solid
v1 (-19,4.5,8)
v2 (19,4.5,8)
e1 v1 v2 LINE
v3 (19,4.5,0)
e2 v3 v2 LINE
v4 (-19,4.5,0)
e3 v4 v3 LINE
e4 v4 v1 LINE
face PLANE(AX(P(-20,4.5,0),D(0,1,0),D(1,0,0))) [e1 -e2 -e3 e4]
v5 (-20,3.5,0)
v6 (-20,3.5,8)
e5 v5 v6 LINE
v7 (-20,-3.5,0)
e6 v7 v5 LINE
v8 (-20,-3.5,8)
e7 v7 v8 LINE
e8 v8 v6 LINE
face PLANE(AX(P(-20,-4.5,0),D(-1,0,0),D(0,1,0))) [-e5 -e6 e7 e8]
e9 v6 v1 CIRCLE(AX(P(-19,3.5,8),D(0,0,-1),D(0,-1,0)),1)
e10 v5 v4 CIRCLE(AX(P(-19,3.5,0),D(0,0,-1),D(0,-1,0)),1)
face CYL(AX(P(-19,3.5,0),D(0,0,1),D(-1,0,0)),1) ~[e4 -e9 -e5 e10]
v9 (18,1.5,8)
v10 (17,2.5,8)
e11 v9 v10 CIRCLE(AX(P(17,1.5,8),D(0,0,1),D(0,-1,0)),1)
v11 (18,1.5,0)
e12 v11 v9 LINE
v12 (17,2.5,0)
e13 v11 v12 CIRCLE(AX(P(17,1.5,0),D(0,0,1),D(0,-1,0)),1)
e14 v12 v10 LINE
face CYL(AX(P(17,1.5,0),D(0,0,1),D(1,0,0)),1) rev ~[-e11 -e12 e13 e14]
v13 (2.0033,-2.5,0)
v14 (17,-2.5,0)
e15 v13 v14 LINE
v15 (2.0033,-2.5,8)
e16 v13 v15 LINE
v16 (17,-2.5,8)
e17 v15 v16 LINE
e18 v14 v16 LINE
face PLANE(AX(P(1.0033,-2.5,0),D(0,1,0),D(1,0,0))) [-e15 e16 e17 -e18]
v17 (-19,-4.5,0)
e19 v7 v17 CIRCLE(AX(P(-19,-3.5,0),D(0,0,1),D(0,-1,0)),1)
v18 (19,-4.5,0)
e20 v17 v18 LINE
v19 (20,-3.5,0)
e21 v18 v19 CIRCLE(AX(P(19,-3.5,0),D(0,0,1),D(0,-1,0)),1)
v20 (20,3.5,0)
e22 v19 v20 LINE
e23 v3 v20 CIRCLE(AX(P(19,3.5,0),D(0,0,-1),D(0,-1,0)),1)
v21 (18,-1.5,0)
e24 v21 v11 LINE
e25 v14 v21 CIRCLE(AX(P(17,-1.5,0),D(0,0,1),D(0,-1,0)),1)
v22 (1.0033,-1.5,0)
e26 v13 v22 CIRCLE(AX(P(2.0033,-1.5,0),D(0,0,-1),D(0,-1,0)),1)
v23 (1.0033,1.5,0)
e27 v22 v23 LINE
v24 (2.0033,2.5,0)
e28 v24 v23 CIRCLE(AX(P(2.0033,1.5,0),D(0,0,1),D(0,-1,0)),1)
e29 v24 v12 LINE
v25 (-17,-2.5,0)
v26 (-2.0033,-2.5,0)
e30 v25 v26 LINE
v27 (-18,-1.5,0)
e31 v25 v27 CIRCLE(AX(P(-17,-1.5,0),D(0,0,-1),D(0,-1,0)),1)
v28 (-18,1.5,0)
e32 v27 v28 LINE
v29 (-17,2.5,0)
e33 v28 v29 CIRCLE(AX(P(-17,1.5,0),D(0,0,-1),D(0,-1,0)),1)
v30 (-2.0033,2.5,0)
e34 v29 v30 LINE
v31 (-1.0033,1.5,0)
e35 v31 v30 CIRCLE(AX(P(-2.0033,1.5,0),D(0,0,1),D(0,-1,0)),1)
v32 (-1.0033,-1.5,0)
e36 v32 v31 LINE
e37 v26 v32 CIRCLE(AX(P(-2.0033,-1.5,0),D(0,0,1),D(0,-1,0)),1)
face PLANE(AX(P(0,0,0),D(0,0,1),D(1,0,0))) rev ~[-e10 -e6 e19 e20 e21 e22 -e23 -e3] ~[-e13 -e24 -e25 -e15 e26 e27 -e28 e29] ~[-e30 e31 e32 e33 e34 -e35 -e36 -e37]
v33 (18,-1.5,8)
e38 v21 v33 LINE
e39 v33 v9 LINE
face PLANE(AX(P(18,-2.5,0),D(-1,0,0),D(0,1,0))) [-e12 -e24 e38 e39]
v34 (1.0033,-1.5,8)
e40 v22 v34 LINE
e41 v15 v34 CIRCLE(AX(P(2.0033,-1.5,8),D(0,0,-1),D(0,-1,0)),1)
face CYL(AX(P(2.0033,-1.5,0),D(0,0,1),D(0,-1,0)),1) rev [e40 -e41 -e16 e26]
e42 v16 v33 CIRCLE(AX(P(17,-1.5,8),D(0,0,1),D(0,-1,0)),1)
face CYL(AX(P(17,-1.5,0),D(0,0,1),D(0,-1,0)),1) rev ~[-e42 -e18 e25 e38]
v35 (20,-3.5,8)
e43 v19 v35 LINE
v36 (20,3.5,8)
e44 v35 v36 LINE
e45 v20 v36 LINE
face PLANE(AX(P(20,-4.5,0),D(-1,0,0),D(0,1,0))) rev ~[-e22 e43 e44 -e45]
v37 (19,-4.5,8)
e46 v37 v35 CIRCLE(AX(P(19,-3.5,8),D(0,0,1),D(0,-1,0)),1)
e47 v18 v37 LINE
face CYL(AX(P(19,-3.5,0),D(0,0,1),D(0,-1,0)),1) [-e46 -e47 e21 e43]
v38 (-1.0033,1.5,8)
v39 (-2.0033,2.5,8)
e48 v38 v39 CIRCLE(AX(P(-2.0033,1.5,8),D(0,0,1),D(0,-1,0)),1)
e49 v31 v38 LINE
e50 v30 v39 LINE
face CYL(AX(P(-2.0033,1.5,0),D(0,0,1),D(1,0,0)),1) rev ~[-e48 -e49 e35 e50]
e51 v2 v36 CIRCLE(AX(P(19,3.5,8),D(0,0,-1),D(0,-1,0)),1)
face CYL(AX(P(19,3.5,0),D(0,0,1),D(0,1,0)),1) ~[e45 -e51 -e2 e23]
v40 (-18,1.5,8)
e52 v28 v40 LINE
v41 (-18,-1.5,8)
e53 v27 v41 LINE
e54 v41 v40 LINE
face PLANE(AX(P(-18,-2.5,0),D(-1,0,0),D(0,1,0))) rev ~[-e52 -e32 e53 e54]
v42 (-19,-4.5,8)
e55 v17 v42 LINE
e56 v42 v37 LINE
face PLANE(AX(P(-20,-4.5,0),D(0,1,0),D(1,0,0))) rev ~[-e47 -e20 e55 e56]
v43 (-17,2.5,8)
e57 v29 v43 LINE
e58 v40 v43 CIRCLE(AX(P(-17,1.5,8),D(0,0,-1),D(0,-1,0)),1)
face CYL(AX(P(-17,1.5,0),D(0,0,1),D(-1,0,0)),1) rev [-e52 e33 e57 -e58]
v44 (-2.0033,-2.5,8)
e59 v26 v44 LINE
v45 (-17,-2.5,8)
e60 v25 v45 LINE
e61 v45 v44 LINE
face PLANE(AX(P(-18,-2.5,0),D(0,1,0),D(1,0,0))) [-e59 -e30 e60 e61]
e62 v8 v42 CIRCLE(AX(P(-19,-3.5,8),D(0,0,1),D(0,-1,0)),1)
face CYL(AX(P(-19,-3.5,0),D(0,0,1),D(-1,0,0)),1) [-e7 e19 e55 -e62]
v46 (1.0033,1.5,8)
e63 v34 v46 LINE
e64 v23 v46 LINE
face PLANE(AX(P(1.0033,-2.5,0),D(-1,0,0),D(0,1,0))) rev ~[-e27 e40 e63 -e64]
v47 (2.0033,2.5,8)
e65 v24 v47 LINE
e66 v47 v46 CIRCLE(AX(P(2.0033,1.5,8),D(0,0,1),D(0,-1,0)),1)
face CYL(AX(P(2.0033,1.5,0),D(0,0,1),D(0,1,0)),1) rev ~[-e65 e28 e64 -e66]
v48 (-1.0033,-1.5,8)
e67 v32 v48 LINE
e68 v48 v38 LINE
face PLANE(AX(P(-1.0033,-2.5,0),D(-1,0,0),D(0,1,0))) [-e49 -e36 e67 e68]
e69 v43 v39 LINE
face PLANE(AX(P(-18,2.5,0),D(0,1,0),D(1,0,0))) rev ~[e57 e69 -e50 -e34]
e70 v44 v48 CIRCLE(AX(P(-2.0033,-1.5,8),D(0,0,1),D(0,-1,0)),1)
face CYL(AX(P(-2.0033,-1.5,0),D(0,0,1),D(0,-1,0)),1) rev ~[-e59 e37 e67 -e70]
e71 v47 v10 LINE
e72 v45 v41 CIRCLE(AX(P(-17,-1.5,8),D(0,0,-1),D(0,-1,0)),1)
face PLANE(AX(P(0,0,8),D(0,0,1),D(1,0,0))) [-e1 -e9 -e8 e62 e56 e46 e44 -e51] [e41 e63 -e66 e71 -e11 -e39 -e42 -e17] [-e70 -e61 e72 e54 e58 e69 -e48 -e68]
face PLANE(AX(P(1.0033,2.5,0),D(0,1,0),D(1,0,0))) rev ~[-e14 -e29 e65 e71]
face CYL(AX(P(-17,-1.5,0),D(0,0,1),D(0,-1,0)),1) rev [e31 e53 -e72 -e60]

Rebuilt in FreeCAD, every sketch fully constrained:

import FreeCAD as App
import Part
import Sketcher


def edges_at(feature, points):
    """Names of the edges that pass closest to the given points."""
    edges = feature.Shape.Edges
    near = lambda p: min(range(len(edges)), key=lambda i: edges[i].distToShape(Part.Vertex(*p))[0])
    return sorted({f"Edge{near(p) + 1}" for p in points})


def add_polygon(sketch, points):
    """Adds a closed chain of lines whose ends are joined by coincident constraints."""
    first, n = sketch.GeometryCount, len(points)
    for a, b in zip(points, points[1:] + points[:1]):
        sketch.addGeometry(Part.LineSegment(App.Vector(*a, 0), App.Vector(*b, 0)), False)
    for i in range(n):
        sketch.addConstraint(Sketcher.Constraint("Coincident", first + i, 2, first + (i + 1) % n, 1))

doc = App.newDocument("Part")
params = doc.addObject("Spreadsheet::Sheet", "Params")
for row, (alias, value) in enumerate([
    ("sketch1_width", "40 mm"),
    ("sketch1_height", "9 mm"),
    ("sketch1_height2", "5 mm"),
    ("pad1_length", "8 mm"),
    ("fillet_radius", "1 mm"),
    ("fillet2_radius", "1 mm"),
], start=1):
    params.set(f"A{row}", alias)
    params.set(f"B{row}", "=" + value)
    params.setAlias(f"B{row}", alias)

body = doc.addObject("PartDesign::Body", "Body")

sketch1 = body.newObject("Sketcher::SketchObject", "Sketch")
sketch1.AttachmentSupport = (doc.getObject("XY_Plane"), [""])
sketch1.MapMode = "FlatFace"
add_polygon(sketch1, [(-20, 4), (-20, -4), (20, -4), (20, 4)])
add_polygon(sketch1, [(-1, -2), (-18, -2), (-18, 2), (-1, 2)])
add_polygon(sketch1, [(18, -2), (1, -2), (1, 2), (18, 2)])
sketch1.addConstraint([
    Sketcher.Constraint("Vertical", 0),
    Sketcher.Constraint("Horizontal", 1),
    Sketcher.Constraint("Vertical", 2),
    Sketcher.Constraint("Horizontal", 3),
    Sketcher.Constraint("Horizontal", 4),
    Sketcher.Constraint("Vertical", 5),
    Sketcher.Constraint("Horizontal", 6),
    Sketcher.Constraint("Vertical", 7),
    Sketcher.Constraint("Horizontal", 8),
    Sketcher.Constraint("Vertical", 9),
    Sketcher.Constraint("Horizontal", 10),
    Sketcher.Constraint("Vertical", 11),
    Sketcher.Constraint("Symmetric", 0, 2, 2, 2, -1, 1),
    Sketcher.Constraint("Symmetric", 6, 2, 8, 2, -1, 1),
    Sketcher.Constraint("Symmetric", 4, 2, 10, 2, -1, 1),
    Sketcher.Constraint("Horizontal", 7, 2, 8, 2),
    Sketcher.Constraint("DistanceX", 1, 1, 1, 2, 40.0),
    Sketcher.Constraint("DistanceY", 0, 2, 0, 1, 9.0),
    Sketcher.Constraint("DistanceY", 5, 1, 5, 2, 5.0),
    Sketcher.Constraint("DistanceX", 4, 2, -1, 1, 18.0),
    Sketcher.Constraint("DistanceX", 4, 2, 4, 1, 16.9967),
])
sketch1.setExpression("Constraints[28]", "Params.sketch1_width")
sketch1.setExpression("Constraints[29]", "Params.sketch1_height")
sketch1.setExpression("Constraints[30]", "Params.sketch1_height2")
pad1 = body.newObject("PartDesign::Pad", "Pad")
pad1.Profile = sketch1
pad1.setExpression("Length", "Params.pad1_length")
doc.recompute()

fillet = body.newObject("PartDesign::Fillet", "Fillet")
fillet.Base = (pad1, edges_at(pad1, [
    (-20, -4.5, 4),
    (-20, 4.5, 4),
    (20, -4.5, 4),
    (20, 4.5, 4),
]))
fillet.setExpression("Radius", "Params.fillet_radius")
doc.recompute()

fillet2 = body.newObject("PartDesign::Fillet", "Fillet001")
fillet2.Base = (fillet, edges_at(fillet, [
    (1.003, -2.5, 4),
    (1.003, 2.5, 4),
    (-1.003, 2.5, 4),
    (-1.003, -2.5, 4),
    (-18, -2.5, 4),
    (-18, 2.5, 4),
    (18, 2.5, 4),
    (18, -2.5, 4),
]))
fillet2.setExpression("Radius", "Params.fillet2_radius")

doc.recompute()
